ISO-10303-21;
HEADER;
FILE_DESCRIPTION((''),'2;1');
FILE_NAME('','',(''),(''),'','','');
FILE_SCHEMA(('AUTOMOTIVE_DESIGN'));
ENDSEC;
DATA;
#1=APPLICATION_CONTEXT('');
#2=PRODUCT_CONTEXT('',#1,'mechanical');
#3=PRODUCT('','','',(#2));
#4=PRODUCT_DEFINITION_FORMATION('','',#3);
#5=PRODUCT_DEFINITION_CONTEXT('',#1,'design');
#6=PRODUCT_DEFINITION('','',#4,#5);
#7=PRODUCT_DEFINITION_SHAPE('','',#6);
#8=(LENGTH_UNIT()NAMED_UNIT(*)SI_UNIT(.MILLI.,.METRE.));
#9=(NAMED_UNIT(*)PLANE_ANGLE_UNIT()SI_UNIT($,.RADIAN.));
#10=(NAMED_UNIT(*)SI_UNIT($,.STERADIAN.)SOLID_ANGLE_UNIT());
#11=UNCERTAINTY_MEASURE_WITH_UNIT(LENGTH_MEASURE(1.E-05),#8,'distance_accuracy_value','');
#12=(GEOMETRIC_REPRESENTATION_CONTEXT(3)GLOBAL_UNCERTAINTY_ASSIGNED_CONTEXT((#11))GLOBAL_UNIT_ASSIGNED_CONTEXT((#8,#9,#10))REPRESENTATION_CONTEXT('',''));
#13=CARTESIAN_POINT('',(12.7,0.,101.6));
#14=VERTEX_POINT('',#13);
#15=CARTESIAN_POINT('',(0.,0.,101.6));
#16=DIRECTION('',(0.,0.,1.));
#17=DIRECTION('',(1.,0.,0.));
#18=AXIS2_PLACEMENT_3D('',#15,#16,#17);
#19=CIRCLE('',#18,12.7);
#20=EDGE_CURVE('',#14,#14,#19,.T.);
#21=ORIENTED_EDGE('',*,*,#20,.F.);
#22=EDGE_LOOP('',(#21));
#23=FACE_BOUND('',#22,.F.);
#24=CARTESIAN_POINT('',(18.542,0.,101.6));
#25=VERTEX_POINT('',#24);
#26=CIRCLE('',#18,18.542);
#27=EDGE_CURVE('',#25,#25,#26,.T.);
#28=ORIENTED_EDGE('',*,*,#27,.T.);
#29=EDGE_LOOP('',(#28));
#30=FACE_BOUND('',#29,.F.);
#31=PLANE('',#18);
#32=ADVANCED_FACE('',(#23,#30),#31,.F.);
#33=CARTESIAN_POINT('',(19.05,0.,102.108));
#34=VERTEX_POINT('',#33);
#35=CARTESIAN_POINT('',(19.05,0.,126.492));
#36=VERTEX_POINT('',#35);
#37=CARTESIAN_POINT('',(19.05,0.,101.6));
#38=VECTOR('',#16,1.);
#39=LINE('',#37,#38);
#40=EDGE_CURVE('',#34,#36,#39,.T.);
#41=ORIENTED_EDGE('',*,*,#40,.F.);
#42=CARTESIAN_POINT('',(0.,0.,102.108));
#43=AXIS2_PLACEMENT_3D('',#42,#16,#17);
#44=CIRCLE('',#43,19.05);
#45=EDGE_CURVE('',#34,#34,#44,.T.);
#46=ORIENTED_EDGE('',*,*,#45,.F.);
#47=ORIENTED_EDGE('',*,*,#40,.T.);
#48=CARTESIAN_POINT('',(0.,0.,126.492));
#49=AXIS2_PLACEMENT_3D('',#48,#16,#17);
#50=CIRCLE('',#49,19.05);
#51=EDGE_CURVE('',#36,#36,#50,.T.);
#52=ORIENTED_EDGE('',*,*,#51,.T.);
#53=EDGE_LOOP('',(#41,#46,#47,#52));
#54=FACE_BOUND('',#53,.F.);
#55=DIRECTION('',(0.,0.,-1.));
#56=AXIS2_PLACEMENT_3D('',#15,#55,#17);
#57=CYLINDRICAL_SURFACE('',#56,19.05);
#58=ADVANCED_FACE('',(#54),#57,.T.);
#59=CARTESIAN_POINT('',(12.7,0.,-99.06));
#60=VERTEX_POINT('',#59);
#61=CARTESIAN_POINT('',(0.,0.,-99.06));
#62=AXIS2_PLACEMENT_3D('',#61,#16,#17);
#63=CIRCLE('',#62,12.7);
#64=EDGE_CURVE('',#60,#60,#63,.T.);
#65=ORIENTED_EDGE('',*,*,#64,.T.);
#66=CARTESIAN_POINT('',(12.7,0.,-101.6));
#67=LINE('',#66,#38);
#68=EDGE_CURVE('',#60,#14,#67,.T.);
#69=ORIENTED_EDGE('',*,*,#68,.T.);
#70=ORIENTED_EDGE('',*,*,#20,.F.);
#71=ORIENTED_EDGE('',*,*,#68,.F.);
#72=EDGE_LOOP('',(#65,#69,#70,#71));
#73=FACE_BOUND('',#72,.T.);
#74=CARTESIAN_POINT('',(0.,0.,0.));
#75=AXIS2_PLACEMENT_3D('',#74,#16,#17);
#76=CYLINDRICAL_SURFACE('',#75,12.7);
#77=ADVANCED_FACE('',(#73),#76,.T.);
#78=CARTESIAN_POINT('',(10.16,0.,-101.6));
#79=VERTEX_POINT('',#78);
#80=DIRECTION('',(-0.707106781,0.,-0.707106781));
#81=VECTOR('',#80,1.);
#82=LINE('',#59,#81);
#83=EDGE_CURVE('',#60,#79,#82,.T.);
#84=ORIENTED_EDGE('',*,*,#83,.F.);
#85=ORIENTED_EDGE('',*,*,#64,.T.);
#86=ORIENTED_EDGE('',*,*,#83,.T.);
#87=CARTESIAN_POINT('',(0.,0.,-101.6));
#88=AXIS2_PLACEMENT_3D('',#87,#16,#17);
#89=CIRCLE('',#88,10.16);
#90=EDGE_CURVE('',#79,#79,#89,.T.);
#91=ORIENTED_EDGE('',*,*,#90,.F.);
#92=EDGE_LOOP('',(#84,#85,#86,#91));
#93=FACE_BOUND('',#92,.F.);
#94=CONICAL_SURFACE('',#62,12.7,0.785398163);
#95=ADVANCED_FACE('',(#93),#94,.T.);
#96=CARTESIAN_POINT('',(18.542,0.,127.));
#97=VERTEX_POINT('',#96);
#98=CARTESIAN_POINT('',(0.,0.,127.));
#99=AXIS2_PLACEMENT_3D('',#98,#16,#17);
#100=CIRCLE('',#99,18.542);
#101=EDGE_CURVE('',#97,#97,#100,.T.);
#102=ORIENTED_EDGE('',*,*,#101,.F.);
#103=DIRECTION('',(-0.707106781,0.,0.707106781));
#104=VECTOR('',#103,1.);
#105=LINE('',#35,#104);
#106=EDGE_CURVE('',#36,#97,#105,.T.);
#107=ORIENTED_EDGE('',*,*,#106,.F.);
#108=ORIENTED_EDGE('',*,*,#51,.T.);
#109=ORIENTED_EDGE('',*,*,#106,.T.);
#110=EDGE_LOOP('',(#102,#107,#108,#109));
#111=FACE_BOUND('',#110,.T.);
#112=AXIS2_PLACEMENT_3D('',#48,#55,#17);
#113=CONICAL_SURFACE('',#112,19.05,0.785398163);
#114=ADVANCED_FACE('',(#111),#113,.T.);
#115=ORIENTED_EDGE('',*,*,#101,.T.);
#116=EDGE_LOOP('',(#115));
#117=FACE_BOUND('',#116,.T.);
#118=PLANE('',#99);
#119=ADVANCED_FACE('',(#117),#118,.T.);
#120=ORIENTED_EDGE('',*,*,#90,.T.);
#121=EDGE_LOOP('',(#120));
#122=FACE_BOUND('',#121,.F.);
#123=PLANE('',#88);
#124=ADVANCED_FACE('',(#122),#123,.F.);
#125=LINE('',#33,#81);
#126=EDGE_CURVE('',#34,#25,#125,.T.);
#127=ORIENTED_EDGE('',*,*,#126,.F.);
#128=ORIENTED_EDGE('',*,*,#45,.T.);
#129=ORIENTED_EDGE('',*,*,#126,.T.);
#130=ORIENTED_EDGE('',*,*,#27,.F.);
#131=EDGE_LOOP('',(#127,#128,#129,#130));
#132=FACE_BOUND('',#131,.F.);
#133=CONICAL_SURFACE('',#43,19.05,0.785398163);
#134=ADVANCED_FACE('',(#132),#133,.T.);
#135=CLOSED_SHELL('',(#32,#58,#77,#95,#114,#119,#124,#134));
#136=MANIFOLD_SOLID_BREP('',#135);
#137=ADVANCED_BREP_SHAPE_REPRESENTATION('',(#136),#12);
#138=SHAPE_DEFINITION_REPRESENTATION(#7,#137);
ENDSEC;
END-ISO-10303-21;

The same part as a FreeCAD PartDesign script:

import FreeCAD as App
import Part
import Sketcher

V = App.Vector
Q = App.Units.Quantity


def edges_at(feature, points):
    """Names of the edges that pass closest to the given points."""
    edges = feature.Shape.Edges
    near = lambda p: min(range(len(edges)), key=lambda i: edges[i].distToShape(Part.Vertex(*p))[0])
    return sorted({f"Edge{near(p) + 1}" for p in points})

doc = App.newDocument("Part")
body = doc.addObject("PartDesign::Body", "Body")

sketch1 = body.newObject("Sketcher::SketchObject", "Sketch")
sketch1.AttachmentSupport = (doc.getObject("XY_Plane"), [""])
sketch1.MapMode = "FlatFace"
sketch1.addGeometry(Part.Circle(V(0, 0, 0), V(0, 0, 1), 13), False)
sketch1.addConstraint([
    Sketcher.Constraint("Coincident", 0, 3, -1, 1),
    Sketcher.Constraint("Diameter", 0, Q("1 in")),
])
pad1 = body.newObject("PartDesign::Pad", "Pad")
pad1.Profile = sketch1
pad1.Length = Q("8 in")
pad1.Midplane = True
doc.recompute()

chamfer = body.newObject("PartDesign::Chamfer", "Chamfer")
chamfer.Base = (pad1, edges_at(pad1, [(-12.7, 0, -101.6)]))
chamfer.Size = Q("0.1 in")

sketch2 = body.newObject("Sketcher::SketchObject", "Sketch001")
sketch2.AttachmentSupport = (doc.getObject("XY_Plane"), [""])
sketch2.MapMode = "FlatFace"
sketch2.AttachmentOffset = App.Placement(V(0, 0, 4 * 25.4), App.Rotation())
sketch2.addGeometry(Part.Circle(V(0, 0, 0), V(0, 0, 1), 19), False)
sketch2.addConstraint([
    Sketcher.Constraint("Coincident", 0, 3, -1, 1),
    Sketcher.Constraint("Diameter", 0, Q("1.5 in")),
])
pad2 = body.newObject("PartDesign::Pad", "Pad001")
pad2.Profile = sketch2
pad2.Length = Q("1 in")
doc.recompute()

chamfer2 = body.newObject("PartDesign::Chamfer", "Chamfer001")
chamfer2.Base = (pad2, edges_at(pad2, [(-19.05, 0, 127), (-19.05, 0, 101.6)]))
chamfer2.Size = Q("0.02 in")

doc.recompute()
